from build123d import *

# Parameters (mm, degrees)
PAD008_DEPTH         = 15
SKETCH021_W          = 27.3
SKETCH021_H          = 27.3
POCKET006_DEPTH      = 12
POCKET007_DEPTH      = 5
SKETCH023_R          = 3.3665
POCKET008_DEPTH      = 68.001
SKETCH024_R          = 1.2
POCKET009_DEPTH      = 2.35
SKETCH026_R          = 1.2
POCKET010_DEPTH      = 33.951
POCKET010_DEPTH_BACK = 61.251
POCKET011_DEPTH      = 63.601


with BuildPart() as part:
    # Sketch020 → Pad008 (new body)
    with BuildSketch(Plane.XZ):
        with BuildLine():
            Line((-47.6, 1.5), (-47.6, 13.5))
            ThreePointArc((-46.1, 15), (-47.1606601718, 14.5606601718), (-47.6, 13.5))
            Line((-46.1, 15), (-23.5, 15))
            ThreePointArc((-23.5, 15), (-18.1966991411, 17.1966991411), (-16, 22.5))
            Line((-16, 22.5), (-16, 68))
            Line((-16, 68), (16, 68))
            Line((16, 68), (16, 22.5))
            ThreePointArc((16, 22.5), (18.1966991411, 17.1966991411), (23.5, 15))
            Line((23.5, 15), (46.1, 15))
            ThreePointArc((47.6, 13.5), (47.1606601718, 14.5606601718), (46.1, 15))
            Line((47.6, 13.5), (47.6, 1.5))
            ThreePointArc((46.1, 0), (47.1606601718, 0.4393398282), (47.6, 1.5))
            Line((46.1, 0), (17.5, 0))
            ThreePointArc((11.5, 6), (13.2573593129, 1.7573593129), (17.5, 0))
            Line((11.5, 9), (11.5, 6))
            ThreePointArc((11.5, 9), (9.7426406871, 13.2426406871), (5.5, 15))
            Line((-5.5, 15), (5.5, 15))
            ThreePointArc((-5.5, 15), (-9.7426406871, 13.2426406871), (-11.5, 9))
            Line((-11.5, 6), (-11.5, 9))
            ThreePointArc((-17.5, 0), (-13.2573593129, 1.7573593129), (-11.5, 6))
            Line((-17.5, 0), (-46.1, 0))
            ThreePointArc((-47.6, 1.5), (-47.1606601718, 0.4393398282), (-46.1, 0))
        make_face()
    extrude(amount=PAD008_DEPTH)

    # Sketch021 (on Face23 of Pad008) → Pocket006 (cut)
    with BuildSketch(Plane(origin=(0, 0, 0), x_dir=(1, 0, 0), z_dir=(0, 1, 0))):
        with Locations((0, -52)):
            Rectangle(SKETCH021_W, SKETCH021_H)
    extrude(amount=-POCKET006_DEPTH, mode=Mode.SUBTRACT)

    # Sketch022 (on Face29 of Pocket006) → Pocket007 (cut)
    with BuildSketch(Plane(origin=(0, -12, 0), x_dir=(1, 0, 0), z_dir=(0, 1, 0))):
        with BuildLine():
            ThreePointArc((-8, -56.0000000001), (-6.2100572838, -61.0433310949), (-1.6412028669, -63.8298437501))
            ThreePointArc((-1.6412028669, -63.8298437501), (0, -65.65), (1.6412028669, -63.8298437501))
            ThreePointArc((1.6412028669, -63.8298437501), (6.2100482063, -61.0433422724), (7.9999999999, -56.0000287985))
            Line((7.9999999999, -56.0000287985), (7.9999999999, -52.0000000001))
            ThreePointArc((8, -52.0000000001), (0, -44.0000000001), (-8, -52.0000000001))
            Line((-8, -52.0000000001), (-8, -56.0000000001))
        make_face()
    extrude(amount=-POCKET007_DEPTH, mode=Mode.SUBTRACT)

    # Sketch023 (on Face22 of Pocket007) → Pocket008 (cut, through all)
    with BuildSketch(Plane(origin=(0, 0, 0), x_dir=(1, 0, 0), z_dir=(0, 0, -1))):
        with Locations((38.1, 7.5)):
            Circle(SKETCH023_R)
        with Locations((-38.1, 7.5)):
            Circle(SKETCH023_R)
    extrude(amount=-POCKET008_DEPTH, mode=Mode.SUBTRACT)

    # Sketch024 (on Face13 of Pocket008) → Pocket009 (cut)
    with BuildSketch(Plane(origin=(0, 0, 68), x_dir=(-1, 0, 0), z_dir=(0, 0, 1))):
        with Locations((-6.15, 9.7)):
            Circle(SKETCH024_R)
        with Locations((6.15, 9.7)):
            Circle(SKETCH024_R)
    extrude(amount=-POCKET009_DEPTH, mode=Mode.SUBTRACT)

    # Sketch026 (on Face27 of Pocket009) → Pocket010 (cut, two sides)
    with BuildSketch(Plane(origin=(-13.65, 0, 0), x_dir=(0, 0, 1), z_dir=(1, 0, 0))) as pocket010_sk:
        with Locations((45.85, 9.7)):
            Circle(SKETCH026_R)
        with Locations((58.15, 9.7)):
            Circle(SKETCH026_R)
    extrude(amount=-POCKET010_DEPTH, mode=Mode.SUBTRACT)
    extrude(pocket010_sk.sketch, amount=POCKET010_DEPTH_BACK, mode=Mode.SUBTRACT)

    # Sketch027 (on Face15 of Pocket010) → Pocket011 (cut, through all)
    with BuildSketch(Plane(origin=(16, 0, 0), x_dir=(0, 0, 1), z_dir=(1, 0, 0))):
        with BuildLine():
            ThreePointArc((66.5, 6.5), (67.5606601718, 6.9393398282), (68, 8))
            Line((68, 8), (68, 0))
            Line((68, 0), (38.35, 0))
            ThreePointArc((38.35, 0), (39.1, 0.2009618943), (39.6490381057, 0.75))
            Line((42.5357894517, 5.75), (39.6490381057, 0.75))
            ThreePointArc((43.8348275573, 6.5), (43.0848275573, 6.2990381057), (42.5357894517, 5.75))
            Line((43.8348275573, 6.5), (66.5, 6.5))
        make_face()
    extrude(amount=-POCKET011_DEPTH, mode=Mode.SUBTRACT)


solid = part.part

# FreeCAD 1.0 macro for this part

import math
import FreeCAD as App
import Part
import Sketcher
Q = App.Units.Quantity


def add_polygon(sketch, points):
    """Adds a closed chain of lines whose ends are joined by coincident constraints."""
    first, n = sketch.GeometryCount, len(points)
    for a, b in zip(points, points[1:] + points[:1]):
        sketch.addGeometry(Part.LineSegment(App.Vector(*a, 0), App.Vector(*b, 0)), False)
    for i in range(n):
        sketch.addConstraint(Sketcher.Constraint("Coincident", first + i, 2, first + (i + 1) % n, 1))

doc = App.newDocument("Part")
body = doc.addObject("PartDesign::Body", "Body")

# Sketch on XZ plane
sketch1 = body.newObject("Sketcher::SketchObject", "Sketch")
sketch1.AttachmentSupport = (doc.getObject("XZ_Plane"), [""])
sketch1.MapMode = "FlatFace"
sketch1.addGeometry([
    Part.LineSegment(App.Vector(-47.6, 13.5, 0), App.Vector(-47.6, 1.5, 0)),  # 0
    Part.ArcOfCircle(Part.Circle(App.Vector(-46.1, 1.5, 0), App.Vector(0, 0, 1), 1.5), math.radians(180), math.radians(270)),  # 1
    Part.LineSegment(App.Vector(-46.1, 0, 0), App.Vector(-17.5, 0, 0)),  # 2
    Part.ArcOfCircle(Part.Circle(App.Vector(-17.5, 6, 0), App.Vector(0, 0, 1), 6), math.radians(-90), math.radians(0)),  # 3
    Part.LineSegment(App.Vector(-11.5, 6, 0), App.Vector(-11.5, 9, 0)),  # 4
    Part.ArcOfCircle(Part.Circle(App.Vector(-5.5, 9, 0), App.Vector(0, 0, 1), 6), math.radians(90), math.radians(180)),  # 5
    Part.LineSegment(App.Vector(-5.5, 15, 0), App.Vector(5.5, 15, 0)),  # 6
    Part.ArcOfCircle(Part.Circle(App.Vector(5.5, 9, 0), App.Vector(0, 0, 1), 6), math.radians(0), math.radians(90)),  # 7
    Part.LineSegment(App.Vector(11.5, 9, 0), App.Vector(11.5, 6, 0)),  # 8
    Part.ArcOfCircle(Part.Circle(App.Vector(17.5, 6, 0), App.Vector(0, 0, 1), 6), math.radians(180), math.radians(270)),  # 9
    Part.LineSegment(App.Vector(17.5, 0, 0), App.Vector(46.1, 0, 0)),  # 10
    Part.ArcOfCircle(Part.Circle(App.Vector(46.1, 1.5, 0), App.Vector(0, 0, 1), 1.5), math.radians(-90), math.radians(0)),  # 11
    Part.LineSegment(App.Vector(47.6, 1.5, 0), App.Vector(47.6, 13.5, 0)),  # 12
    Part.ArcOfCircle(Part.Circle(App.Vector(46.1, 13.5, 0), App.Vector(0, 0, 1), 1.5), math.radians(0), math.radians(90)),  # 13
    Part.LineSegment(App.Vector(46.1, 15, 0), App.Vector(23.5, 15, 0)),  # 14
    Part.ArcOfCircle(Part.Circle(App.Vector(23.5, 22.5, 0), App.Vector(0, 0, 1), 7.5), math.radians(180), math.radians(270)),  # 15
    Part.LineSegment(App.Vector(16, 22.5, 0), App.Vector(16, 68, 0)),  # 16
    Part.LineSegment(App.Vector(16, 68, 0), App.Vector(-16, 68, 0)),  # 17
    Part.LineSegment(App.Vector(-16, 68, 0), App.Vector(-16, 22.5, 0)),  # 18
    Part.ArcOfCircle(Part.Circle(App.Vector(-23.5, 22.5, 0), App.Vector(0, 0, 1), 7.5), math.radians(-90), math.radians(0)),  # 19
    Part.LineSegment(App.Vector(-23.5, 15, 0), App.Vector(-46.1, 15, 0)),  # 20
    Part.ArcOfCircle(Part.Circle(App.Vector(-46.1, 13.5, 0), App.Vector(0, 0, 1), 1.5), math.radians(90), math.radians(180)),  # 21
], False)
sketch1.addConstraint([
    Sketcher.Constraint("Tangent", 0, 2, 1, 1),
    Sketcher.Constraint("Tangent", 1, 2, 2, 1),
    Sketcher.Constraint("Tangent", 2, 2, 3, 1),
    Sketcher.Constraint("Tangent", 3, 2, 4, 1),
    Sketcher.Constraint("Tangent", 4, 2, 5, 2),
    Sketcher.Constraint("Tangent", 5, 1, 6, 1),
    Sketcher.Constraint("Tangent", 6, 2, 7, 2),
    Sketcher.Constraint("Tangent", 7, 1, 8, 1),
    Sketcher.Constraint("Tangent", 8, 2, 9, 1),
    Sketcher.Constraint("Tangent", 9, 2, 10, 1),
    Sketcher.Constraint("Tangent", 10, 2, 11, 1),
    Sketcher.Constraint("Tangent", 11, 2, 12, 1),
    Sketcher.Constraint("Tangent", 12, 2, 13, 1),
    Sketcher.Constraint("Tangent", 13, 2, 14, 1),
    Sketcher.Constraint("Tangent", 14, 2, 15, 2),
    Sketcher.Constraint("Tangent", 15, 1, 16, 1),
    Sketcher.Constraint("Coincident", 16, 2, 17, 1),
    Sketcher.Constraint("Coincident", 17, 2, 18, 1),
    Sketcher.Constraint("Tangent", 18, 2, 19, 2),
    Sketcher.Constraint("Tangent", 19, 1, 20, 1),
    Sketcher.Constraint("Tangent", 20, 2, 21, 1),
    Sketcher.Constraint("Tangent", 21, 2, 0, 1),
    Sketcher.Constraint("Vertical", 0),
    Sketcher.Constraint("Horizontal", 2),
    Sketcher.Constraint("Vertical", 4),
    Sketcher.Constraint("Horizontal", 6),
    Sketcher.Constraint("Vertical", 8),
    Sketcher.Constraint("Horizontal", 10),
    Sketcher.Constraint("Vertical", 12),
    Sketcher.Constraint("Horizontal", 14),
    Sketcher.Constraint("Vertical", 16),
    Sketcher.Constraint("Horizontal", 17),
    Sketcher.Constraint("Vertical", 18),
    Sketcher.Constraint("Horizontal", 20),
    Sketcher.Constraint("Equal", 3, 5),
    Sketcher.Constraint("Equal", 5, 7),
    Sketcher.Constraint("Equal", 7, 9),
    Sketcher.Constraint("Equal", 1, 11),
    Sketcher.Constraint("Equal", 11, 13),
    Sketcher.Constraint("Equal", 15, 19),
    Sketcher.Constraint("Equal", 13, 21),
    Sketcher.Constraint("Symmetric", 2, 2, 9, 2, -1, 1),
    Sketcher.Constraint("Symmetric", 1, 3, 11, 3, -2),
    Sketcher.Constraint("Symmetric", 15, 3, 19, 3, -2),
    Sketcher.Constraint("Horizontal", 6, 2, 13, 2),
    Sketcher.Constraint("Radius", 3, 6.0),
    Sketcher.Constraint("Radius", 1, 1.5),
    Sketcher.Constraint("Radius", 15, 7.5),
    Sketcher.Constraint("DistanceX", 6, 1, 6, 2, 11.0),
    Sketcher.Constraint("DistanceX", 17, 2, 17, 1, 32.0),
    Sketcher.Constraint("DistanceY", 0, 2, 0, 1, 12.0),
    Sketcher.Constraint("DistanceX", 2, 1, 2, 2, 28.6),
    Sketcher.Constraint("DistanceY", 16, 1, 16, 2, 45.5),
])
pad1 = body.newObject("PartDesign::Pad", "Pad")
pad1.Profile = sketch1
pad1.Length = 15

# Sketch on XZ plane
sketch2 = body.newObject("Sketcher::SketchObject", "Sketch001")
sketch2.AttachmentSupport = (doc.getObject("XZ_Plane"), [""])
sketch2.MapMode = "FlatFace"
add_polygon(sketch2, [(-14, 38), (-14, 66), (14, 66), (14, 38)])  # lines 0-3
sketch2.addConstraint([
    Sketcher.Constraint("Vertical", 0),
    Sketcher.Constraint("Horizontal", 1),
    Sketcher.Constraint("Vertical", 2),
    Sketcher.Constraint("Horizontal", 3),
    Sketcher.Constraint("Equal", 3, 0),
    Sketcher.Constraint("DistanceX", 1, 1, 1, 2, 27.3),
    Sketcher.Constraint("DistanceX", 0, 2, -1, 1, 13.65),
    Sketcher.Constraint("DistanceY", -1, 1, 0, 2, 65.65),
])
pocket1 = body.newObject("PartDesign::Pocket", "Pocket")
pocket1.Profile = sketch2
pocket1.Length = 12
pocket1.Reversed = True

# Sketch on XZ plane
sketch3 = body.newObject("Sketcher::SketchObject", "Sketch002")
sketch3.AttachmentSupport = (doc.getObject("XZ_Plane"), [""])
sketch3.MapMode = "FlatFace"
sketch3.AttachmentOffset = App.Placement(App.Vector(0, 0, 12), App.Rotation())
sketch3.addGeometry([
    Part.ArcOfCircle(Part.Circle(App.Vector(0, 56, 0), App.Vector(0, 0, 1), 8), math.radians(102), math.radians(180)),  # 0
    Part.ArcOfCircle(Part.Circle(App.Vector(0, 64, 0), App.Vector(0, 0, 1), 1.6), math.radians(-6), math.radians(186)),  # 1
    Part.ArcOfCircle(Part.Circle(App.Vector(0, 56, 0), App.Vector(0, 0, 1), 8), math.radians(0), math.radians(78)),  # 2
    Part.LineSegment(App.Vector(8, 56, 0), App.Vector(8, 52, 0)),  # 3
    Part.ArcOfCircle(Part.Circle(App.Vector(0, 52, 0), App.Vector(0, 0, 1), 8), math.radians(180), math.radians(360)),  # 4
    Part.LineSegment(App.Vector(-8, 52, 0), App.Vector(-8, 56, 0)),  # 5
], False)
sketch3.addConstraint([
    Sketcher.Constraint("Coincident", 0, 1, 1, 2),
    Sketcher.Constraint("Coincident", 1, 1, 2, 2),
    Sketcher.Constraint("Coincident", 2, 1, 3, 1),
    Sketcher.Constraint("Tangent", 3, 2, 4, 2),
    Sketcher.Constraint("Tangent", 4, 1, 5, 1),
    Sketcher.Constraint("Tangent", 5, 2, 0, 2),
    Sketcher.Constraint("Vertical", 3),
    Sketcher.Constraint("Vertical", 5),
    Sketcher.Constraint("Coincident", 2, 3, 0, 3),
    Sketcher.Constraint("Equal", 0, 2),
    Sketcher.Constraint("Symmetric", 0, 1, 1, 1, -2),
    Sketcher.Constraint("Radius", 0, 8.0),
    Sketcher.Constraint("DistanceY", 5, 1, 5, 2, 4.0),
    Sketcher.Constraint("Radius", 1, 1.65),
    Sketcher.Constraint("DistanceY", -1, 1, 0, 3, 56.0),
    Sketcher.Constraint("DistanceY", -1, 1, 1, 3, 64.0),
    Sketcher.Constraint("DistanceY", 3, 2, 3, 1, 4.000029),
])
pocket2 = body.newObject("PartDesign::Pocket", "Pocket001")
pocket2.Profile = sketch3
pocket2.Length = 5
pocket2.Reversed = True

# Sketch on XY plane
sketch4 = body.newObject("Sketcher::SketchObject", "Sketch003")
sketch4.AttachmentSupport = (doc.getObject("XY_Plane"), [""])
sketch4.MapMode = "FlatFace"
sketch4.addGeometry([
    Part.Circle(App.Vector(38.1, -7.5, 0), App.Vector(0, 0, 1), 3.4),
    Part.Circle(App.Vector(-38.1, -7.5, 0), App.Vector(0, 0, 1), 3.4),
], False)
sketch4.addConstraint([
    Sketcher.Constraint("Equal", 0, 1),
    Sketcher.Constraint("Symmetric", 0, 3, 1, 3, -2),
    Sketcher.Constraint("Diameter", 0, 6.733),
    Sketcher.Constraint("DistanceX", -1, 1, 0, 3, 38.1),
    Sketcher.Constraint("DistanceY", 0, 3, -1, 1, 7.5),
])
pocket3 = body.newObject("PartDesign::Pocket", "Pocket002")
pocket3.Profile = sketch4
pocket3.Type = "ThroughAll"
pocket3.Reversed = True

# Sketch on XY plane
sketch5 = body.newObject("Sketcher::SketchObject", "Sketch004")
sketch5.AttachmentSupport = (doc.getObject("XY_Plane"), [""])
sketch5.MapMode = "FlatFace"
sketch5.AttachmentOffset = App.Placement(App.Vector(0, 0, 68), App.Rotation())
sketch5.addGeometry([
    Part.Circle(App.Vector(6.2, -9.7, 0), App.Vector(0, 0, 1), 1.2),
    Part.Circle(App.Vector(-6.2, -9.7, 0), App.Vector(0, 0, 1), 1.2),
], False)
sketch5.addConstraint([
    Sketcher.Constraint("Equal", 0, 1),
    Sketcher.Constraint("Symmetric", 0, 3, 1, 3, -2),
    Sketcher.Constraint("Diameter", 0, 2.4),
    Sketcher.Constraint("DistanceY", 0, 3, -1, 1, 9.7),
    Sketcher.Constraint("DistanceX", 1, 3, 0, 3, 12.3),
])
pocket4 = body.newObject("PartDesign::Pocket", "Pocket003")
pocket4.Profile = sketch5
pocket4.Length = 2.35

# Sketch on YZ plane
sketch6 = body.newObject("Sketcher::SketchObject", "Sketch005")
sketch6.AttachmentSupport = (doc.getObject("YZ_Plane"), [""])
sketch6.MapMode = "FlatFace"
sketch6.AttachmentOffset = App.Placement(App.Vector(0, 0, -13.65), App.Rotation())
sketch6.addGeometry([
    Part.Circle(App.Vector(-9.7, 45.9, 0), App.Vector(0, 0, 1), 1.2),
    Part.Circle(App.Vector(-9.7, 58.1, 0), App.Vector(0, 0, 1), 1.2),
], False)
sketch6.addConstraint([
    Sketcher.Constraint("Equal", 0, 1),
    Sketcher.Constraint("Vertical", 0, 3, 1, 3),
    Sketcher.Constraint("Diameter", 0, 2.4),
    Sketcher.Constraint("DistanceX", 0, 3, -1, 1, 9.7),
    Sketcher.Constraint("DistanceY", 0, 3, 1, 3, 12.3),
    Sketcher.Constraint("DistanceY", -1, 1, 0, 3, 45.85),
])
pocket5 = body.newObject("PartDesign::Pocket", "Pocket004")
pocket5.Profile = sketch6
pocket5.Type = "ThroughAll"
pocket5.Midplane = True

# Sketch on YZ plane
sketch7 = body.newObject("Sketcher::SketchObject", "Sketch006")
sketch7.AttachmentSupport = (doc.getObject("YZ_Plane"), [""])
sketch7.MapMode = "FlatFace"
sketch7.AttachmentOffset = App.Placement(App.Vector(0, 0, 16), App.Rotation())
sketch7.addGeometry([
    Part.ArcOfCircle(Part.Circle(App.Vector(-8, 66.5, 0), App.Vector(0, 0, 1), 1.5), math.radians(0), math.radians(90)),  # 0
    Part.LineSegment(App.Vector(-6.5, 66.5, 0), App.Vector(-6.5, 43.8, 0)),  # 1
    Part.ArcOfCircle(Part.Circle(App.Vector(-5, 43.8, 0), App.Vector(0, 0, 1), 1.5), math.radians(180), math.radians(240)),  # 2
    Part.LineSegment(App.Vector(-5.8, 42.5, 0), App.Vector(-0.8, 39.6, 0)),  # 3
    Part.ArcOfCircle(Part.Circle(App.Vector(-1.5, 38.4, 0), App.Vector(0, 0, 1), 1.5), math.radians(0), math.radians(60)),  # 4
    Part.LineSegment(App.Vector(0, 38.4, 0), App.Vector(0, 68, 0)),  # 5
    Part.LineSegment(App.Vector(0, 68, 0), App.Vector(-8, 68, 0)),  # 6
], False)
sketch7.addConstraint([
    Sketcher.Constraint("Tangent", 0, 1, 1, 1),
    Sketcher.Constraint("Tangent", 1, 2, 2, 1),
    Sketcher.Constraint("Tangent", 2, 2, 3, 1),
    Sketcher.Constraint("Tangent", 3, 2, 4, 2),
    Sketcher.Constraint("Tangent", 4, 1, 5, 1),
    Sketcher.Constraint("Coincident", 5, 2, 6, 1),
    Sketcher.Constraint("Tangent", 6, 2, 0, 2),
    Sketcher.Constraint("Vertical", 1),
    Sketcher.Constraint("Vertical", 5),
    Sketcher.Constraint("Horizontal", 6),
    Sketcher.Constraint("Equal", 0, 2),
    Sketcher.Constraint("Equal", 2, 4),
    Sketcher.Constraint("PointOnObject", 4, 1, -2),
    Sketcher.Constraint("Radius", 0, 1.5),
    Sketcher.Constraint("DistanceX", 6, 2, 6, 1, 8.0),
    Sketcher.Constraint("Angle", 3, Q("-30 deg")),
    Sketcher.Constraint("DistanceY", -1, 1, 5, 2, 68.0),
    Sketcher.Constraint("DistanceY", 5, 1, 5, 2, 29.65),
])
pocket6 = body.newObject("PartDesign::Pocket", "Pocket005")
pocket6.Profile = sketch7
pocket6.Type = "ThroughAll"

doc.recompute()
